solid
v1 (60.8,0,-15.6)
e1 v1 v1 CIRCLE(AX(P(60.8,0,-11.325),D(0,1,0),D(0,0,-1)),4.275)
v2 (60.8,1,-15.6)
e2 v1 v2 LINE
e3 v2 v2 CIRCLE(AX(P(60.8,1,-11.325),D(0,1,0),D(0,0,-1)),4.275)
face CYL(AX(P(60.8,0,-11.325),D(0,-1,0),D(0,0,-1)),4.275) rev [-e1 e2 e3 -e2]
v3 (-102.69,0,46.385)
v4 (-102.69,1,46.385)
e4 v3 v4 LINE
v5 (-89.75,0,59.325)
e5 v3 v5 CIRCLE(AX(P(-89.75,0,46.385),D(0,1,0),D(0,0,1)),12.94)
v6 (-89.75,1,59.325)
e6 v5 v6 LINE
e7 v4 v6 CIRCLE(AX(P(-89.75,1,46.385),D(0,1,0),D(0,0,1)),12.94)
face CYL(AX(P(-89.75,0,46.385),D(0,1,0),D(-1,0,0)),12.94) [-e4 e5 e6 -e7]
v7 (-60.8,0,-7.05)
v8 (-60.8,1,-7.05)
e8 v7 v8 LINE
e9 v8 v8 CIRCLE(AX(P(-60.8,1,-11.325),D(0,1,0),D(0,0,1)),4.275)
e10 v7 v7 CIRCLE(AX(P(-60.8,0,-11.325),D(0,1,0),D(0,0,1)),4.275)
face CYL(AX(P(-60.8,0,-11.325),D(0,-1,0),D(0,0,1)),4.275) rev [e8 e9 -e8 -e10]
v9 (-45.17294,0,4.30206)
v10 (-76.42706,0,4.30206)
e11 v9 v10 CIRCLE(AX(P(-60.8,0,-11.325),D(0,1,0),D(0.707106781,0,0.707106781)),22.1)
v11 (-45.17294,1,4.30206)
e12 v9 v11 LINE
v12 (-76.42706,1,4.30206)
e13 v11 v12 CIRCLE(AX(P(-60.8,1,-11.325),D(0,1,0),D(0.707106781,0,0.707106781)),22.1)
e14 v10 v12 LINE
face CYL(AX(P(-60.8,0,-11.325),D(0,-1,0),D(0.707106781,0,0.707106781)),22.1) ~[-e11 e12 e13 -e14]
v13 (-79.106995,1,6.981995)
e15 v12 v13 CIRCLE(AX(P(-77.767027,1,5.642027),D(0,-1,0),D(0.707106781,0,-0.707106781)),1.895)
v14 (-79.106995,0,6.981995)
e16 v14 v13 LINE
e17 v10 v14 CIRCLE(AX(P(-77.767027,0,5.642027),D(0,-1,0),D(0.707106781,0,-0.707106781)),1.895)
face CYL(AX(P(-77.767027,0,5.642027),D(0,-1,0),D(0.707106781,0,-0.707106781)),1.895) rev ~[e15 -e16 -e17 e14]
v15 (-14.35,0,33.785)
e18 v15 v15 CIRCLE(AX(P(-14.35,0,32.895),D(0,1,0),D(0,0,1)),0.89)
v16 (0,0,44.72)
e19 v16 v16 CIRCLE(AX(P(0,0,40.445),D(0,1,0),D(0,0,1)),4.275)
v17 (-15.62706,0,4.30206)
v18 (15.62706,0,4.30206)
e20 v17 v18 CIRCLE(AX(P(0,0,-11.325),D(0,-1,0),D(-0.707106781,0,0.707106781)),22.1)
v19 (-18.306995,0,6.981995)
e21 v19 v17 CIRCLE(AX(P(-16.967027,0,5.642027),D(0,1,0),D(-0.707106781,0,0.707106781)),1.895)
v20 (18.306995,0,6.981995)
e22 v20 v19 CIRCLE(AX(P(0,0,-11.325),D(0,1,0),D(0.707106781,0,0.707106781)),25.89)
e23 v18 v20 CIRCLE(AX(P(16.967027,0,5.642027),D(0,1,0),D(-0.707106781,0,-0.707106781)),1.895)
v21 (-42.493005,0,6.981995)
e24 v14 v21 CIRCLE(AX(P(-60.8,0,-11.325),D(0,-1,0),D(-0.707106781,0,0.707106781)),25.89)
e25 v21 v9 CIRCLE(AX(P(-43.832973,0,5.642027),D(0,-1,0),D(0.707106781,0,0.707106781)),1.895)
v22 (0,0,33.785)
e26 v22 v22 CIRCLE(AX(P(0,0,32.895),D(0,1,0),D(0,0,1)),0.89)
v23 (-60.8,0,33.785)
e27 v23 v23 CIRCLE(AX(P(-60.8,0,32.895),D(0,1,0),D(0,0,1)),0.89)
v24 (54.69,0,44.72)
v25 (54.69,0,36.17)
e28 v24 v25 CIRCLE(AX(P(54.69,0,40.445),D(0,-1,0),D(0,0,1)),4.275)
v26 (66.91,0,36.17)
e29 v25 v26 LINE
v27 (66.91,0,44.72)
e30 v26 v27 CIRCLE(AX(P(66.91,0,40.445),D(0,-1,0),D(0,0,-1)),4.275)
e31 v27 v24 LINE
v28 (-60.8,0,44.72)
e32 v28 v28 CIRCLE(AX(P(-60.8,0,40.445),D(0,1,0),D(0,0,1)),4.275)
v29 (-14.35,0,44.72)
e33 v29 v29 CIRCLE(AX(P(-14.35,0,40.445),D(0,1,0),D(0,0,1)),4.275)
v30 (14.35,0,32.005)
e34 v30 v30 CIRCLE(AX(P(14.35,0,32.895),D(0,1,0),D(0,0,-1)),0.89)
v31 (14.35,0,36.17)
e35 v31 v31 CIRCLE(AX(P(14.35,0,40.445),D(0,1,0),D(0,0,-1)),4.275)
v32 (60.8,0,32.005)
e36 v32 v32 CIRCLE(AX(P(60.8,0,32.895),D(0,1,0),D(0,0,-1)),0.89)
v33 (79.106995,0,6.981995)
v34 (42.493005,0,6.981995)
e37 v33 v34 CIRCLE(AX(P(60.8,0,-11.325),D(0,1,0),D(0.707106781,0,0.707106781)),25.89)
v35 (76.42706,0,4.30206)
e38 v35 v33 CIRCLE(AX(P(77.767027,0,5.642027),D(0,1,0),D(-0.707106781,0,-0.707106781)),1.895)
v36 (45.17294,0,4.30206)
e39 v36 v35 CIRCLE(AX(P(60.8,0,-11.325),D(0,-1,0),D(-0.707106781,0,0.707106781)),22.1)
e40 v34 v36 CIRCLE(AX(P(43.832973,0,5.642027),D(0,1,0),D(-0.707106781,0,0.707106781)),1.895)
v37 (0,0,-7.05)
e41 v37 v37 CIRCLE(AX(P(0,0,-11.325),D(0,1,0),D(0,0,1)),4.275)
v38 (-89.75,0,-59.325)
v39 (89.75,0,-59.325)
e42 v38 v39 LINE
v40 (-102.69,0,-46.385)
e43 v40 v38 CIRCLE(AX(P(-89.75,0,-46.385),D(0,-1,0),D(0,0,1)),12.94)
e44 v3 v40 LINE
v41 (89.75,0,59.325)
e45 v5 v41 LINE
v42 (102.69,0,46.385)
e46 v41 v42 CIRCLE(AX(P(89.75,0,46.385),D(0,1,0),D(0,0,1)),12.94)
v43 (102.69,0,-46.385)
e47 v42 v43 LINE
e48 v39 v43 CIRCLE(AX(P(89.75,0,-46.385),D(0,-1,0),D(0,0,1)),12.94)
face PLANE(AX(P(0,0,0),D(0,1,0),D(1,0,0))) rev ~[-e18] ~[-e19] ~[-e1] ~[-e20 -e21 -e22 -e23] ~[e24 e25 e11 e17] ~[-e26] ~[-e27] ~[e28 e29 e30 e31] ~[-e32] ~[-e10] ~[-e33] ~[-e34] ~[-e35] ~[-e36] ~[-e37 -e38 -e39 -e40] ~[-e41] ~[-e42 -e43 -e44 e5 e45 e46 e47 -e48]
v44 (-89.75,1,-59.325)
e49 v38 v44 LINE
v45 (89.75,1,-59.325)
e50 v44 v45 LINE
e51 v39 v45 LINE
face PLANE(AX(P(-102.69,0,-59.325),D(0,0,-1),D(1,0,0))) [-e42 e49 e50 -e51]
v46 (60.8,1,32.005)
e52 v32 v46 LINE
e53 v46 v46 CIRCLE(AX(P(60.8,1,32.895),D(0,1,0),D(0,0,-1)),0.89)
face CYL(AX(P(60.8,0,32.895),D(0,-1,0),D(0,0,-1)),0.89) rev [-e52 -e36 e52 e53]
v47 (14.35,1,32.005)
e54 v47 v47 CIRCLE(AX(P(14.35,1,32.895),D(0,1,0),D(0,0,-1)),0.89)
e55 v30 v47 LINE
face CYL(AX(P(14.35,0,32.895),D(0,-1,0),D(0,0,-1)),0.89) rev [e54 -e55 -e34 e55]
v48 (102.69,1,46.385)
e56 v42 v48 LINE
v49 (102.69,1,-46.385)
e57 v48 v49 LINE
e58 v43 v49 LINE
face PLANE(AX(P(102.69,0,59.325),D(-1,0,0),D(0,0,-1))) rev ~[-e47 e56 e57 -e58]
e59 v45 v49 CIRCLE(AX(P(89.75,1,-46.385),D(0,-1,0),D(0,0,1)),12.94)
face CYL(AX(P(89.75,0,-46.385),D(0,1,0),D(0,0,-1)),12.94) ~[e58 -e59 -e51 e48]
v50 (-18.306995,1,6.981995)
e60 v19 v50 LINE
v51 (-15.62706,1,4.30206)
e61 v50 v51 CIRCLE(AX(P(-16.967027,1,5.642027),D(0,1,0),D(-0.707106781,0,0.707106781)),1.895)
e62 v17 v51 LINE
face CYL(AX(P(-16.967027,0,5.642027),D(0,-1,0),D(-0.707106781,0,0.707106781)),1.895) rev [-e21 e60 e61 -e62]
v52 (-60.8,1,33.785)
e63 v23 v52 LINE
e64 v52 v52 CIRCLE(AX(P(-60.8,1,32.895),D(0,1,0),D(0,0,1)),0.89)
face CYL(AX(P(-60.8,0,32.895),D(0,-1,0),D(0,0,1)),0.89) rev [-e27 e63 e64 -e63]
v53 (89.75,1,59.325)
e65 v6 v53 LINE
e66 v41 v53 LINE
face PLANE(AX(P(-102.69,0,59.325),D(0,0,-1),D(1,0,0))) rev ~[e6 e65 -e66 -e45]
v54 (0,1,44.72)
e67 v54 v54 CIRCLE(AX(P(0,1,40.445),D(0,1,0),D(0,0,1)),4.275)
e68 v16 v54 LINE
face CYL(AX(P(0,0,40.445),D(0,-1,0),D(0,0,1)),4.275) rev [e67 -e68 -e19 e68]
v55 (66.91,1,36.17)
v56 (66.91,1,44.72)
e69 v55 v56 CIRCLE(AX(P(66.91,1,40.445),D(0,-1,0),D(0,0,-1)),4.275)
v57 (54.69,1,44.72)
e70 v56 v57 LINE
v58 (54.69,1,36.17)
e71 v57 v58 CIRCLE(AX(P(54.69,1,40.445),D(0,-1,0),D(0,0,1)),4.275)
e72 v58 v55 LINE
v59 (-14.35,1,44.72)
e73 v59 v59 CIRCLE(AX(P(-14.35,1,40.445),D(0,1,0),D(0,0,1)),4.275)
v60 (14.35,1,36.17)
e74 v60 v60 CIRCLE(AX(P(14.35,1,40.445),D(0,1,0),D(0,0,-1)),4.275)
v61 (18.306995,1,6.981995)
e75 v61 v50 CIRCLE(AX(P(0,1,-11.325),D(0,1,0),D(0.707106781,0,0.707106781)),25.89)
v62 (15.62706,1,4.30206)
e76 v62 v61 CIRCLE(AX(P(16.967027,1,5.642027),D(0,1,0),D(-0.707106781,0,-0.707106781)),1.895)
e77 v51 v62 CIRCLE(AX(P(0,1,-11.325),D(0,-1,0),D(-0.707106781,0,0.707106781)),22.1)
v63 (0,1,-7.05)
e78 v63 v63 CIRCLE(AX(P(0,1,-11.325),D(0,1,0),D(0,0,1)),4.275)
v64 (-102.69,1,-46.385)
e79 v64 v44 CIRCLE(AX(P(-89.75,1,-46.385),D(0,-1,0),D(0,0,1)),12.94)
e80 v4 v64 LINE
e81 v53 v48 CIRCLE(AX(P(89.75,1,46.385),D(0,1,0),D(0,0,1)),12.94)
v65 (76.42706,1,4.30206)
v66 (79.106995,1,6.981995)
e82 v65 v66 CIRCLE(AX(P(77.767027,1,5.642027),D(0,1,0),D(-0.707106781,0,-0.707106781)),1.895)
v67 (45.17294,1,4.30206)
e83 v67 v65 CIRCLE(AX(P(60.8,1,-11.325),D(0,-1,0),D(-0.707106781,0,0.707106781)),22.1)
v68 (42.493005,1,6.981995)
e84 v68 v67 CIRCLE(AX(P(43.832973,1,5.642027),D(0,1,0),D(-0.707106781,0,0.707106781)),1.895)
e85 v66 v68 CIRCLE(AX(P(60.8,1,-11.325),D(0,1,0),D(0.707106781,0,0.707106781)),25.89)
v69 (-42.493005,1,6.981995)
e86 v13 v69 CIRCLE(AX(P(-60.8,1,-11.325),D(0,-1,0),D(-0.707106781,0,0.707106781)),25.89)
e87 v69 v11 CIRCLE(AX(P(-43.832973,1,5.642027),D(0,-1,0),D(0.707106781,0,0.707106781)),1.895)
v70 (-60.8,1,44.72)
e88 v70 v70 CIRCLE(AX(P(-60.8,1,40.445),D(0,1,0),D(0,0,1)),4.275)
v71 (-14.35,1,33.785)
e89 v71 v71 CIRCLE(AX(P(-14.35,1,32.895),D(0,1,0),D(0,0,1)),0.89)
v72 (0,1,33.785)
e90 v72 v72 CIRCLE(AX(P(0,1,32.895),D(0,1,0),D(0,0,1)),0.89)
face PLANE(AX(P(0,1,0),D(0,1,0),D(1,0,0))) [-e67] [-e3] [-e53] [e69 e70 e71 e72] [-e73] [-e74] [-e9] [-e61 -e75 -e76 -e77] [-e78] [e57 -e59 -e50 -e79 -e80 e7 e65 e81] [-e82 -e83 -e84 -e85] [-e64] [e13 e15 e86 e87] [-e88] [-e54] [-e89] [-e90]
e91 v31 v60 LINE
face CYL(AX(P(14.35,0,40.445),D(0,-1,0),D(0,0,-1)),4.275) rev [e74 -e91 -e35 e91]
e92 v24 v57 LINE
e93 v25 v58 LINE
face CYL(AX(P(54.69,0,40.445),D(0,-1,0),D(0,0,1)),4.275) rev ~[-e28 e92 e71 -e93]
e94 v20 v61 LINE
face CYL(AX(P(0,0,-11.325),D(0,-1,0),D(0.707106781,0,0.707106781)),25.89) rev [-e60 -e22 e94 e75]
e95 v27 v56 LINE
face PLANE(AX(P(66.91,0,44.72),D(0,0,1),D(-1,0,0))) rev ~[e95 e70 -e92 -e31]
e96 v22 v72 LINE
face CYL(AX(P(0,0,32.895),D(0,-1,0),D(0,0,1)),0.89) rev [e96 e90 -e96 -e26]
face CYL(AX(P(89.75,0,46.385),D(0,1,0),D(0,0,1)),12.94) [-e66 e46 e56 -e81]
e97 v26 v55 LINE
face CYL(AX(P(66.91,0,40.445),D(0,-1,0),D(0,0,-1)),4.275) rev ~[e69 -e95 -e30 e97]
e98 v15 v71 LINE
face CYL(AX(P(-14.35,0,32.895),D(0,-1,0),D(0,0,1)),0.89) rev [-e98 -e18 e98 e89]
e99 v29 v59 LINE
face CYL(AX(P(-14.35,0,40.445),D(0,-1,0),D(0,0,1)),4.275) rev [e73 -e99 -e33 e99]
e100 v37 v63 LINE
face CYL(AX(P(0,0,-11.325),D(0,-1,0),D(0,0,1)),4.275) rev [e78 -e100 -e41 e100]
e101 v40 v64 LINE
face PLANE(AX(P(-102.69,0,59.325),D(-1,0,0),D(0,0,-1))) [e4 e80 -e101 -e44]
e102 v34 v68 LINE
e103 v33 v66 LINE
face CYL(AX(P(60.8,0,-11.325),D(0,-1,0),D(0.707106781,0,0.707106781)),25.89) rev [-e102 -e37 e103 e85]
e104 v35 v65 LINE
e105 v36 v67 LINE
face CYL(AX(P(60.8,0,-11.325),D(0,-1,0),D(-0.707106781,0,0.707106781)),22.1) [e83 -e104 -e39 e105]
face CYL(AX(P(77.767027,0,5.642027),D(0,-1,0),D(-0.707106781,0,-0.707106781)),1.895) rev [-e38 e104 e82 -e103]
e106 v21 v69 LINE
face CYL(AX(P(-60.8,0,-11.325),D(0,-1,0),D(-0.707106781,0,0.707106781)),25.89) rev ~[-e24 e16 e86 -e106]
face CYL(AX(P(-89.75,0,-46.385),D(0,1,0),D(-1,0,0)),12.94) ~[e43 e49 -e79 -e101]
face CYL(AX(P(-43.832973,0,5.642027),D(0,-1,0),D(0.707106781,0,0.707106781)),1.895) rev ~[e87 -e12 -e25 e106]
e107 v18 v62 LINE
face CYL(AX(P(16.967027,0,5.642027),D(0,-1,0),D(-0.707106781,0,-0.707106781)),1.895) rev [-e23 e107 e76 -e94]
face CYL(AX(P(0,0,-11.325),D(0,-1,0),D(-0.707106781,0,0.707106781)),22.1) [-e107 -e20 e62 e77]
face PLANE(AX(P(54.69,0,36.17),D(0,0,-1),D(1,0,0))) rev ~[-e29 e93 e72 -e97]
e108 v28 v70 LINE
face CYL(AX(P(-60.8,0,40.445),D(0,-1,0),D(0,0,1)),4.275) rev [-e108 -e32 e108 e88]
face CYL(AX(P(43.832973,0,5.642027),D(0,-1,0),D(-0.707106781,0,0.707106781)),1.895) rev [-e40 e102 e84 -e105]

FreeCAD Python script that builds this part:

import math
import FreeCAD as App
import Part
import Sketcher

V = App.Vector


def edges_at(feature, points):
    """Names of the edges that pass closest to the given points."""
    edges = feature.Shape.Edges
    near = lambda p: min(range(len(edges)), key=lambda i: edges[i].distToShape(Part.Vertex(*p))[0])
    return sorted({f"Edge{near(p) + 1}" for p in points})

doc = App.newDocument("Part")
body = doc.addObject("PartDesign::Body", "Body")

# Sketch on XZ plane
sketch1 = body.newObject("Sketcher::SketchObject", "Sketch")
sketch1.AttachmentSupport = (doc.getObject("XZ_Plane"), [""])
sketch1.MapMode = "FlatFace"
sketch1.addGeometry([
    Part.LineSegment(V(-102.7, -59.3, 0), V(-102.7, 59.3, 0)),  # 0
    Part.LineSegment(V(-102.7, 59.3, 0), V(102.7, 59.3, 0)),  # 1
    Part.LineSegment(V(102.7, 59.3, 0), V(102.7, -59.3, 0)),  # 2
    Part.LineSegment(V(102.7, -59.3, 0), V(-102.7, -59.3, 0)),  # 3
    Part.Circle(V(-60.8, 40.4, 0), V(0, 0, 1), 4.3),  # 4
    Part.Circle(V(-60.8, 32.9, 0), V(0, 0, 1), 0.9),  # 5
    Part.Circle(V(-14.3, 40.4, 0), V(0, 0, 1), 4.3),  # 6
    Part.Circle(V(-14.3, 32.9, 0), V(0, 0, 1), 0.9),  # 7
    Part.Circle(V(0, 40.4, 0), V(0, 0, 1), 4.3),  # 8
    Part.Circle(V(14.3, 40.4, 0), V(0, 0, 1), 4.3),  # 9
    Part.Circle(V(0, 32.9, 0), V(0, 0, 1), 0.9),  # 10
    Part.Circle(V(14.3, 32.9, 0), V(0, 0, 1), 0.9),  # 11
    Part.ArcOfCircle(Part.Circle(V(54.7, 40.4, 0), V(0, 0, 1), 4.3), math.radians(90), math.radians(270)),  # 12
    Part.LineSegment(V(54.7, 36.2, 0), V(66.9, 36.2, 0)),  # 13
    Part.ArcOfCircle(Part.Circle(V(66.9, 40.4, 0), V(0, 0, 1), 4.3), math.radians(-90), math.radians(90)),  # 14
    Part.LineSegment(V(66.9, 44.7, 0), V(54.7, 44.7, 0)),  # 15
    Part.Circle(V(60.8, 32.9, 0), V(0, 0, 1), 0.9),  # 16
    Part.Circle(V(-60.8, -11.3, 0), V(0, 0, 1), 4.3),  # 17
    Part.ArcOfCircle(Part.Circle(V(-60.8, -11.3, 0), V(0, 0, 1), 25.9), math.radians(135), math.radians(405)),  # 18
    Part.ArcOfCircle(Part.Circle(V(-43.8, 5.6, 0), V(0, 0, 1), 1.9), math.radians(45), math.radians(225)),  # 19
    Part.ArcOfCircle(Part.Circle(V(-60.8, -11.3, 0), V(0, 0, 1), 22.1), math.radians(135), math.radians(405)),  # 20
    Part.ArcOfCircle(Part.Circle(V(-77.8, 5.6, 0), V(0, 0, 1), 1.9), math.radians(-45), math.radians(135)),  # 21
    Part.Circle(V(0, -11.3, 0), V(0, 0, 1), 4.3),  # 22
    Part.ArcOfCircle(Part.Circle(V(0, -11.3, 0), V(0, 0, 1), 25.9), math.radians(135), math.radians(405)),  # 23
    Part.ArcOfCircle(Part.Circle(V(17, 5.6, 0), V(0, 0, 1), 1.9), math.radians(45), math.radians(225)),  # 24
    Part.ArcOfCircle(Part.Circle(V(0, -11.3, 0), V(0, 0, 1), 22.1), math.radians(135), math.radians(405)),  # 25
    Part.ArcOfCircle(Part.Circle(V(-17, 5.6, 0), V(0, 0, 1), 1.9), math.radians(-45), math.radians(135)),  # 26
    Part.Circle(V(60.8, -11.3, 0), V(0, 0, 1), 4.3),  # 27
    Part.ArcOfCircle(Part.Circle(V(43.8, 5.6, 0), V(0, 0, 1), 1.9), math.radians(-45), math.radians(135)),  # 28
    Part.ArcOfCircle(Part.Circle(V(60.8, -11.3, 0), V(0, 0, 1), 25.9), math.radians(135), math.radians(405)),  # 29
    Part.ArcOfCircle(Part.Circle(V(77.8, 5.6, 0), V(0, 0, 1), 1.9), math.radians(45), math.radians(225)),  # 30
    Part.ArcOfCircle(Part.Circle(V(60.8, -11.3, 0), V(0, 0, 1), 22.1), math.radians(135), math.radians(405)),  # 31
], False)
sketch1.addConstraint([
    Sketcher.Constraint("Coincident", 0, 2, 1, 1),
    Sketcher.Constraint("Coincident", 1, 2, 2, 1),
    Sketcher.Constraint("Coincident", 2, 2, 3, 1),
    Sketcher.Constraint("Coincident", 3, 2, 0, 1),
    Sketcher.Constraint("Tangent", 12, 2, 13, 1),
    Sketcher.Constraint("Tangent", 13, 2, 14, 1),
    Sketcher.Constraint("Tangent", 14, 2, 15, 1),
    Sketcher.Constraint("Tangent", 15, 2, 12, 1),
    Sketcher.Constraint("Tangent", 18, 2, 19, 1),
    Sketcher.Constraint("Tangent", 19, 2, 20, 2),
    Sketcher.Constraint("Tangent", 20, 1, 21, 1),
    Sketcher.Constraint("Tangent", 21, 2, 18, 1),
    Sketcher.Constraint("Tangent", 23, 2, 24, 1),
    Sketcher.Constraint("Tangent", 24, 2, 25, 2),
    Sketcher.Constraint("Tangent", 25, 1, 26, 1),
    Sketcher.Constraint("Tangent", 26, 2, 23, 1),
    Sketcher.Constraint("Tangent", 28, 2, 29, 1),
    Sketcher.Constraint("Tangent", 29, 2, 30, 1),
    Sketcher.Constraint("Tangent", 30, 2, 31, 2),
    Sketcher.Constraint("Tangent", 31, 1, 28, 1),
    Sketcher.Constraint("Vertical", 0),
    Sketcher.Constraint("Horizontal", 1),
    Sketcher.Constraint("Vertical", 2),
    Sketcher.Constraint("Horizontal", 3),
    Sketcher.Constraint("Horizontal", 13),
    Sketcher.Constraint("Horizontal", 15),
    Sketcher.Constraint("Coincident", 18, 3, 17, 3),
    Sketcher.Constraint("Coincident", 20, 3, 17, 3),
    Sketcher.Constraint("Coincident", 23, 3, 22, 3),
    Sketcher.Constraint("Coincident", 25, 3, 22, 3),
    Sketcher.Constraint("Coincident", 29, 3, 27, 3),
    Sketcher.Constraint("Coincident", 31, 3, 27, 3),
    Sketcher.Constraint("Equal", 4, 6),
    Sketcher.Constraint("Equal", 5, 7),
    Sketcher.Constraint("Equal", 6, 8),
    Sketcher.Constraint("Equal", 8, 9),
    Sketcher.Constraint("Equal", 7, 10),
    Sketcher.Constraint("Equal", 10, 11),
    Sketcher.Constraint("Equal", 9, 12),
    Sketcher.Constraint("Equal", 11, 16),
    Sketcher.Constraint("Equal", 14, 17),
    Sketcher.Constraint("Equal", 17, 22),
    Sketcher.Constraint("Equal", 18, 23),
    Sketcher.Constraint("Equal", 21, 24),
    Sketcher.Constraint("Equal", 22, 27),
    Sketcher.Constraint("Equal", 26, 28),
    Sketcher.Constraint("Equal", 23, 29),
    Sketcher.Constraint("Symmetric", 0, 2, 2, 2, -1, 1),
    Sketcher.Constraint("Symmetric", 6, 3, 9, 3, -2),
    Sketcher.Constraint("Symmetric", 7, 3, 11, 3, -2),
    Sketcher.Constraint("Symmetric", 5, 3, 16, 3, -2),
    Sketcher.Constraint("Symmetric", 24, 3, 26, 3, -2),
    Sketcher.Constraint("Symmetric", 17, 3, 27, 3, -2),
    Sketcher.Constraint("PointOnObject", 8, 3, -2),
    Sketcher.Constraint("PointOnObject", 10, 3, -2),
    Sketcher.Constraint("Horizontal", 4, 3, 6, 3),
    Sketcher.Constraint("Horizontal", 5, 3, 7, 3),
    Sketcher.Constraint("Horizontal", 6, 3, 8, 3),
    Sketcher.Constraint("Horizontal", 7, 3, 10, 3),
    Sketcher.Constraint("Horizontal", 9, 3, 12, 3),
    Sketcher.Constraint("Horizontal", 19, 3, 21, 3),
    Sketcher.Constraint("Horizontal", 20, 3, 22, 3),
    Sketcher.Constraint("Horizontal", 21, 3, 24, 3),
    Sketcher.Constraint("Horizontal", 26, 3, 28, 3),
    Sketcher.Constraint("Horizontal", 28, 3, 30, 3),
    Sketcher.Constraint("Vertical", 4, 3, 5, 3),
    Sketcher.Constraint("Vertical", 6, 3, 7, 3),
    Sketcher.Constraint("Vertical", 5, 3, 17, 3),
    Sketcher.Constraint("Radius", 20, 22.1),
    Sketcher.Constraint("Diameter", 4, 8.55),
    Sketcher.Constraint("Diameter", 5, 1.78),
    Sketcher.Constraint("Radius", 18, 25.89),
    Sketcher.Constraint("DistanceX", 12, 3, 1, 2, 48.0),
    Sketcher.Constraint("DistanceY", 2, 2, 27, 3, 48.0),
    Sketcher.Constraint("DistanceX", 1, 1, 1, 2, 205.38),
    Sketcher.Constraint("DistanceX", 13, 1, 13, 2, 12.22),
    Sketcher.Constraint("DistanceY", 0, 1, 0, 2, 118.65),
    Sketcher.Constraint("DistanceX", 4, 3, -1, 1, 60.8),
    Sketcher.Constraint("DistanceX", 6, 3, 9, 3, 28.7),
    Sketcher.Constraint("DistanceY", -1, 1, 12, 2, 36.17),
    Sketcher.Constraint("DistanceY", 5, 3, 4, 3, 7.55),
    Sketcher.Constraint("DistanceX", 19, 2, -1, 1, 45.17294),
])
pad1 = body.newObject("PartDesign::Pad", "Pad")
pad1.Profile = sketch1
pad1.Length = 1
pad1.Reversed = True
doc.recompute()

fillet = body.newObject("PartDesign::Fillet", "Fillet")
fillet.Base = (pad1, edges_at(pad1, [
    (102.69, 0.5, 59.325),
    (-102.69, 0.5, 59.325),
    (-102.69, 0.5, -59.325),
    (102.69, 0.5, -59.325),
]))
fillet.Radius = 12.94

doc.recompute()
